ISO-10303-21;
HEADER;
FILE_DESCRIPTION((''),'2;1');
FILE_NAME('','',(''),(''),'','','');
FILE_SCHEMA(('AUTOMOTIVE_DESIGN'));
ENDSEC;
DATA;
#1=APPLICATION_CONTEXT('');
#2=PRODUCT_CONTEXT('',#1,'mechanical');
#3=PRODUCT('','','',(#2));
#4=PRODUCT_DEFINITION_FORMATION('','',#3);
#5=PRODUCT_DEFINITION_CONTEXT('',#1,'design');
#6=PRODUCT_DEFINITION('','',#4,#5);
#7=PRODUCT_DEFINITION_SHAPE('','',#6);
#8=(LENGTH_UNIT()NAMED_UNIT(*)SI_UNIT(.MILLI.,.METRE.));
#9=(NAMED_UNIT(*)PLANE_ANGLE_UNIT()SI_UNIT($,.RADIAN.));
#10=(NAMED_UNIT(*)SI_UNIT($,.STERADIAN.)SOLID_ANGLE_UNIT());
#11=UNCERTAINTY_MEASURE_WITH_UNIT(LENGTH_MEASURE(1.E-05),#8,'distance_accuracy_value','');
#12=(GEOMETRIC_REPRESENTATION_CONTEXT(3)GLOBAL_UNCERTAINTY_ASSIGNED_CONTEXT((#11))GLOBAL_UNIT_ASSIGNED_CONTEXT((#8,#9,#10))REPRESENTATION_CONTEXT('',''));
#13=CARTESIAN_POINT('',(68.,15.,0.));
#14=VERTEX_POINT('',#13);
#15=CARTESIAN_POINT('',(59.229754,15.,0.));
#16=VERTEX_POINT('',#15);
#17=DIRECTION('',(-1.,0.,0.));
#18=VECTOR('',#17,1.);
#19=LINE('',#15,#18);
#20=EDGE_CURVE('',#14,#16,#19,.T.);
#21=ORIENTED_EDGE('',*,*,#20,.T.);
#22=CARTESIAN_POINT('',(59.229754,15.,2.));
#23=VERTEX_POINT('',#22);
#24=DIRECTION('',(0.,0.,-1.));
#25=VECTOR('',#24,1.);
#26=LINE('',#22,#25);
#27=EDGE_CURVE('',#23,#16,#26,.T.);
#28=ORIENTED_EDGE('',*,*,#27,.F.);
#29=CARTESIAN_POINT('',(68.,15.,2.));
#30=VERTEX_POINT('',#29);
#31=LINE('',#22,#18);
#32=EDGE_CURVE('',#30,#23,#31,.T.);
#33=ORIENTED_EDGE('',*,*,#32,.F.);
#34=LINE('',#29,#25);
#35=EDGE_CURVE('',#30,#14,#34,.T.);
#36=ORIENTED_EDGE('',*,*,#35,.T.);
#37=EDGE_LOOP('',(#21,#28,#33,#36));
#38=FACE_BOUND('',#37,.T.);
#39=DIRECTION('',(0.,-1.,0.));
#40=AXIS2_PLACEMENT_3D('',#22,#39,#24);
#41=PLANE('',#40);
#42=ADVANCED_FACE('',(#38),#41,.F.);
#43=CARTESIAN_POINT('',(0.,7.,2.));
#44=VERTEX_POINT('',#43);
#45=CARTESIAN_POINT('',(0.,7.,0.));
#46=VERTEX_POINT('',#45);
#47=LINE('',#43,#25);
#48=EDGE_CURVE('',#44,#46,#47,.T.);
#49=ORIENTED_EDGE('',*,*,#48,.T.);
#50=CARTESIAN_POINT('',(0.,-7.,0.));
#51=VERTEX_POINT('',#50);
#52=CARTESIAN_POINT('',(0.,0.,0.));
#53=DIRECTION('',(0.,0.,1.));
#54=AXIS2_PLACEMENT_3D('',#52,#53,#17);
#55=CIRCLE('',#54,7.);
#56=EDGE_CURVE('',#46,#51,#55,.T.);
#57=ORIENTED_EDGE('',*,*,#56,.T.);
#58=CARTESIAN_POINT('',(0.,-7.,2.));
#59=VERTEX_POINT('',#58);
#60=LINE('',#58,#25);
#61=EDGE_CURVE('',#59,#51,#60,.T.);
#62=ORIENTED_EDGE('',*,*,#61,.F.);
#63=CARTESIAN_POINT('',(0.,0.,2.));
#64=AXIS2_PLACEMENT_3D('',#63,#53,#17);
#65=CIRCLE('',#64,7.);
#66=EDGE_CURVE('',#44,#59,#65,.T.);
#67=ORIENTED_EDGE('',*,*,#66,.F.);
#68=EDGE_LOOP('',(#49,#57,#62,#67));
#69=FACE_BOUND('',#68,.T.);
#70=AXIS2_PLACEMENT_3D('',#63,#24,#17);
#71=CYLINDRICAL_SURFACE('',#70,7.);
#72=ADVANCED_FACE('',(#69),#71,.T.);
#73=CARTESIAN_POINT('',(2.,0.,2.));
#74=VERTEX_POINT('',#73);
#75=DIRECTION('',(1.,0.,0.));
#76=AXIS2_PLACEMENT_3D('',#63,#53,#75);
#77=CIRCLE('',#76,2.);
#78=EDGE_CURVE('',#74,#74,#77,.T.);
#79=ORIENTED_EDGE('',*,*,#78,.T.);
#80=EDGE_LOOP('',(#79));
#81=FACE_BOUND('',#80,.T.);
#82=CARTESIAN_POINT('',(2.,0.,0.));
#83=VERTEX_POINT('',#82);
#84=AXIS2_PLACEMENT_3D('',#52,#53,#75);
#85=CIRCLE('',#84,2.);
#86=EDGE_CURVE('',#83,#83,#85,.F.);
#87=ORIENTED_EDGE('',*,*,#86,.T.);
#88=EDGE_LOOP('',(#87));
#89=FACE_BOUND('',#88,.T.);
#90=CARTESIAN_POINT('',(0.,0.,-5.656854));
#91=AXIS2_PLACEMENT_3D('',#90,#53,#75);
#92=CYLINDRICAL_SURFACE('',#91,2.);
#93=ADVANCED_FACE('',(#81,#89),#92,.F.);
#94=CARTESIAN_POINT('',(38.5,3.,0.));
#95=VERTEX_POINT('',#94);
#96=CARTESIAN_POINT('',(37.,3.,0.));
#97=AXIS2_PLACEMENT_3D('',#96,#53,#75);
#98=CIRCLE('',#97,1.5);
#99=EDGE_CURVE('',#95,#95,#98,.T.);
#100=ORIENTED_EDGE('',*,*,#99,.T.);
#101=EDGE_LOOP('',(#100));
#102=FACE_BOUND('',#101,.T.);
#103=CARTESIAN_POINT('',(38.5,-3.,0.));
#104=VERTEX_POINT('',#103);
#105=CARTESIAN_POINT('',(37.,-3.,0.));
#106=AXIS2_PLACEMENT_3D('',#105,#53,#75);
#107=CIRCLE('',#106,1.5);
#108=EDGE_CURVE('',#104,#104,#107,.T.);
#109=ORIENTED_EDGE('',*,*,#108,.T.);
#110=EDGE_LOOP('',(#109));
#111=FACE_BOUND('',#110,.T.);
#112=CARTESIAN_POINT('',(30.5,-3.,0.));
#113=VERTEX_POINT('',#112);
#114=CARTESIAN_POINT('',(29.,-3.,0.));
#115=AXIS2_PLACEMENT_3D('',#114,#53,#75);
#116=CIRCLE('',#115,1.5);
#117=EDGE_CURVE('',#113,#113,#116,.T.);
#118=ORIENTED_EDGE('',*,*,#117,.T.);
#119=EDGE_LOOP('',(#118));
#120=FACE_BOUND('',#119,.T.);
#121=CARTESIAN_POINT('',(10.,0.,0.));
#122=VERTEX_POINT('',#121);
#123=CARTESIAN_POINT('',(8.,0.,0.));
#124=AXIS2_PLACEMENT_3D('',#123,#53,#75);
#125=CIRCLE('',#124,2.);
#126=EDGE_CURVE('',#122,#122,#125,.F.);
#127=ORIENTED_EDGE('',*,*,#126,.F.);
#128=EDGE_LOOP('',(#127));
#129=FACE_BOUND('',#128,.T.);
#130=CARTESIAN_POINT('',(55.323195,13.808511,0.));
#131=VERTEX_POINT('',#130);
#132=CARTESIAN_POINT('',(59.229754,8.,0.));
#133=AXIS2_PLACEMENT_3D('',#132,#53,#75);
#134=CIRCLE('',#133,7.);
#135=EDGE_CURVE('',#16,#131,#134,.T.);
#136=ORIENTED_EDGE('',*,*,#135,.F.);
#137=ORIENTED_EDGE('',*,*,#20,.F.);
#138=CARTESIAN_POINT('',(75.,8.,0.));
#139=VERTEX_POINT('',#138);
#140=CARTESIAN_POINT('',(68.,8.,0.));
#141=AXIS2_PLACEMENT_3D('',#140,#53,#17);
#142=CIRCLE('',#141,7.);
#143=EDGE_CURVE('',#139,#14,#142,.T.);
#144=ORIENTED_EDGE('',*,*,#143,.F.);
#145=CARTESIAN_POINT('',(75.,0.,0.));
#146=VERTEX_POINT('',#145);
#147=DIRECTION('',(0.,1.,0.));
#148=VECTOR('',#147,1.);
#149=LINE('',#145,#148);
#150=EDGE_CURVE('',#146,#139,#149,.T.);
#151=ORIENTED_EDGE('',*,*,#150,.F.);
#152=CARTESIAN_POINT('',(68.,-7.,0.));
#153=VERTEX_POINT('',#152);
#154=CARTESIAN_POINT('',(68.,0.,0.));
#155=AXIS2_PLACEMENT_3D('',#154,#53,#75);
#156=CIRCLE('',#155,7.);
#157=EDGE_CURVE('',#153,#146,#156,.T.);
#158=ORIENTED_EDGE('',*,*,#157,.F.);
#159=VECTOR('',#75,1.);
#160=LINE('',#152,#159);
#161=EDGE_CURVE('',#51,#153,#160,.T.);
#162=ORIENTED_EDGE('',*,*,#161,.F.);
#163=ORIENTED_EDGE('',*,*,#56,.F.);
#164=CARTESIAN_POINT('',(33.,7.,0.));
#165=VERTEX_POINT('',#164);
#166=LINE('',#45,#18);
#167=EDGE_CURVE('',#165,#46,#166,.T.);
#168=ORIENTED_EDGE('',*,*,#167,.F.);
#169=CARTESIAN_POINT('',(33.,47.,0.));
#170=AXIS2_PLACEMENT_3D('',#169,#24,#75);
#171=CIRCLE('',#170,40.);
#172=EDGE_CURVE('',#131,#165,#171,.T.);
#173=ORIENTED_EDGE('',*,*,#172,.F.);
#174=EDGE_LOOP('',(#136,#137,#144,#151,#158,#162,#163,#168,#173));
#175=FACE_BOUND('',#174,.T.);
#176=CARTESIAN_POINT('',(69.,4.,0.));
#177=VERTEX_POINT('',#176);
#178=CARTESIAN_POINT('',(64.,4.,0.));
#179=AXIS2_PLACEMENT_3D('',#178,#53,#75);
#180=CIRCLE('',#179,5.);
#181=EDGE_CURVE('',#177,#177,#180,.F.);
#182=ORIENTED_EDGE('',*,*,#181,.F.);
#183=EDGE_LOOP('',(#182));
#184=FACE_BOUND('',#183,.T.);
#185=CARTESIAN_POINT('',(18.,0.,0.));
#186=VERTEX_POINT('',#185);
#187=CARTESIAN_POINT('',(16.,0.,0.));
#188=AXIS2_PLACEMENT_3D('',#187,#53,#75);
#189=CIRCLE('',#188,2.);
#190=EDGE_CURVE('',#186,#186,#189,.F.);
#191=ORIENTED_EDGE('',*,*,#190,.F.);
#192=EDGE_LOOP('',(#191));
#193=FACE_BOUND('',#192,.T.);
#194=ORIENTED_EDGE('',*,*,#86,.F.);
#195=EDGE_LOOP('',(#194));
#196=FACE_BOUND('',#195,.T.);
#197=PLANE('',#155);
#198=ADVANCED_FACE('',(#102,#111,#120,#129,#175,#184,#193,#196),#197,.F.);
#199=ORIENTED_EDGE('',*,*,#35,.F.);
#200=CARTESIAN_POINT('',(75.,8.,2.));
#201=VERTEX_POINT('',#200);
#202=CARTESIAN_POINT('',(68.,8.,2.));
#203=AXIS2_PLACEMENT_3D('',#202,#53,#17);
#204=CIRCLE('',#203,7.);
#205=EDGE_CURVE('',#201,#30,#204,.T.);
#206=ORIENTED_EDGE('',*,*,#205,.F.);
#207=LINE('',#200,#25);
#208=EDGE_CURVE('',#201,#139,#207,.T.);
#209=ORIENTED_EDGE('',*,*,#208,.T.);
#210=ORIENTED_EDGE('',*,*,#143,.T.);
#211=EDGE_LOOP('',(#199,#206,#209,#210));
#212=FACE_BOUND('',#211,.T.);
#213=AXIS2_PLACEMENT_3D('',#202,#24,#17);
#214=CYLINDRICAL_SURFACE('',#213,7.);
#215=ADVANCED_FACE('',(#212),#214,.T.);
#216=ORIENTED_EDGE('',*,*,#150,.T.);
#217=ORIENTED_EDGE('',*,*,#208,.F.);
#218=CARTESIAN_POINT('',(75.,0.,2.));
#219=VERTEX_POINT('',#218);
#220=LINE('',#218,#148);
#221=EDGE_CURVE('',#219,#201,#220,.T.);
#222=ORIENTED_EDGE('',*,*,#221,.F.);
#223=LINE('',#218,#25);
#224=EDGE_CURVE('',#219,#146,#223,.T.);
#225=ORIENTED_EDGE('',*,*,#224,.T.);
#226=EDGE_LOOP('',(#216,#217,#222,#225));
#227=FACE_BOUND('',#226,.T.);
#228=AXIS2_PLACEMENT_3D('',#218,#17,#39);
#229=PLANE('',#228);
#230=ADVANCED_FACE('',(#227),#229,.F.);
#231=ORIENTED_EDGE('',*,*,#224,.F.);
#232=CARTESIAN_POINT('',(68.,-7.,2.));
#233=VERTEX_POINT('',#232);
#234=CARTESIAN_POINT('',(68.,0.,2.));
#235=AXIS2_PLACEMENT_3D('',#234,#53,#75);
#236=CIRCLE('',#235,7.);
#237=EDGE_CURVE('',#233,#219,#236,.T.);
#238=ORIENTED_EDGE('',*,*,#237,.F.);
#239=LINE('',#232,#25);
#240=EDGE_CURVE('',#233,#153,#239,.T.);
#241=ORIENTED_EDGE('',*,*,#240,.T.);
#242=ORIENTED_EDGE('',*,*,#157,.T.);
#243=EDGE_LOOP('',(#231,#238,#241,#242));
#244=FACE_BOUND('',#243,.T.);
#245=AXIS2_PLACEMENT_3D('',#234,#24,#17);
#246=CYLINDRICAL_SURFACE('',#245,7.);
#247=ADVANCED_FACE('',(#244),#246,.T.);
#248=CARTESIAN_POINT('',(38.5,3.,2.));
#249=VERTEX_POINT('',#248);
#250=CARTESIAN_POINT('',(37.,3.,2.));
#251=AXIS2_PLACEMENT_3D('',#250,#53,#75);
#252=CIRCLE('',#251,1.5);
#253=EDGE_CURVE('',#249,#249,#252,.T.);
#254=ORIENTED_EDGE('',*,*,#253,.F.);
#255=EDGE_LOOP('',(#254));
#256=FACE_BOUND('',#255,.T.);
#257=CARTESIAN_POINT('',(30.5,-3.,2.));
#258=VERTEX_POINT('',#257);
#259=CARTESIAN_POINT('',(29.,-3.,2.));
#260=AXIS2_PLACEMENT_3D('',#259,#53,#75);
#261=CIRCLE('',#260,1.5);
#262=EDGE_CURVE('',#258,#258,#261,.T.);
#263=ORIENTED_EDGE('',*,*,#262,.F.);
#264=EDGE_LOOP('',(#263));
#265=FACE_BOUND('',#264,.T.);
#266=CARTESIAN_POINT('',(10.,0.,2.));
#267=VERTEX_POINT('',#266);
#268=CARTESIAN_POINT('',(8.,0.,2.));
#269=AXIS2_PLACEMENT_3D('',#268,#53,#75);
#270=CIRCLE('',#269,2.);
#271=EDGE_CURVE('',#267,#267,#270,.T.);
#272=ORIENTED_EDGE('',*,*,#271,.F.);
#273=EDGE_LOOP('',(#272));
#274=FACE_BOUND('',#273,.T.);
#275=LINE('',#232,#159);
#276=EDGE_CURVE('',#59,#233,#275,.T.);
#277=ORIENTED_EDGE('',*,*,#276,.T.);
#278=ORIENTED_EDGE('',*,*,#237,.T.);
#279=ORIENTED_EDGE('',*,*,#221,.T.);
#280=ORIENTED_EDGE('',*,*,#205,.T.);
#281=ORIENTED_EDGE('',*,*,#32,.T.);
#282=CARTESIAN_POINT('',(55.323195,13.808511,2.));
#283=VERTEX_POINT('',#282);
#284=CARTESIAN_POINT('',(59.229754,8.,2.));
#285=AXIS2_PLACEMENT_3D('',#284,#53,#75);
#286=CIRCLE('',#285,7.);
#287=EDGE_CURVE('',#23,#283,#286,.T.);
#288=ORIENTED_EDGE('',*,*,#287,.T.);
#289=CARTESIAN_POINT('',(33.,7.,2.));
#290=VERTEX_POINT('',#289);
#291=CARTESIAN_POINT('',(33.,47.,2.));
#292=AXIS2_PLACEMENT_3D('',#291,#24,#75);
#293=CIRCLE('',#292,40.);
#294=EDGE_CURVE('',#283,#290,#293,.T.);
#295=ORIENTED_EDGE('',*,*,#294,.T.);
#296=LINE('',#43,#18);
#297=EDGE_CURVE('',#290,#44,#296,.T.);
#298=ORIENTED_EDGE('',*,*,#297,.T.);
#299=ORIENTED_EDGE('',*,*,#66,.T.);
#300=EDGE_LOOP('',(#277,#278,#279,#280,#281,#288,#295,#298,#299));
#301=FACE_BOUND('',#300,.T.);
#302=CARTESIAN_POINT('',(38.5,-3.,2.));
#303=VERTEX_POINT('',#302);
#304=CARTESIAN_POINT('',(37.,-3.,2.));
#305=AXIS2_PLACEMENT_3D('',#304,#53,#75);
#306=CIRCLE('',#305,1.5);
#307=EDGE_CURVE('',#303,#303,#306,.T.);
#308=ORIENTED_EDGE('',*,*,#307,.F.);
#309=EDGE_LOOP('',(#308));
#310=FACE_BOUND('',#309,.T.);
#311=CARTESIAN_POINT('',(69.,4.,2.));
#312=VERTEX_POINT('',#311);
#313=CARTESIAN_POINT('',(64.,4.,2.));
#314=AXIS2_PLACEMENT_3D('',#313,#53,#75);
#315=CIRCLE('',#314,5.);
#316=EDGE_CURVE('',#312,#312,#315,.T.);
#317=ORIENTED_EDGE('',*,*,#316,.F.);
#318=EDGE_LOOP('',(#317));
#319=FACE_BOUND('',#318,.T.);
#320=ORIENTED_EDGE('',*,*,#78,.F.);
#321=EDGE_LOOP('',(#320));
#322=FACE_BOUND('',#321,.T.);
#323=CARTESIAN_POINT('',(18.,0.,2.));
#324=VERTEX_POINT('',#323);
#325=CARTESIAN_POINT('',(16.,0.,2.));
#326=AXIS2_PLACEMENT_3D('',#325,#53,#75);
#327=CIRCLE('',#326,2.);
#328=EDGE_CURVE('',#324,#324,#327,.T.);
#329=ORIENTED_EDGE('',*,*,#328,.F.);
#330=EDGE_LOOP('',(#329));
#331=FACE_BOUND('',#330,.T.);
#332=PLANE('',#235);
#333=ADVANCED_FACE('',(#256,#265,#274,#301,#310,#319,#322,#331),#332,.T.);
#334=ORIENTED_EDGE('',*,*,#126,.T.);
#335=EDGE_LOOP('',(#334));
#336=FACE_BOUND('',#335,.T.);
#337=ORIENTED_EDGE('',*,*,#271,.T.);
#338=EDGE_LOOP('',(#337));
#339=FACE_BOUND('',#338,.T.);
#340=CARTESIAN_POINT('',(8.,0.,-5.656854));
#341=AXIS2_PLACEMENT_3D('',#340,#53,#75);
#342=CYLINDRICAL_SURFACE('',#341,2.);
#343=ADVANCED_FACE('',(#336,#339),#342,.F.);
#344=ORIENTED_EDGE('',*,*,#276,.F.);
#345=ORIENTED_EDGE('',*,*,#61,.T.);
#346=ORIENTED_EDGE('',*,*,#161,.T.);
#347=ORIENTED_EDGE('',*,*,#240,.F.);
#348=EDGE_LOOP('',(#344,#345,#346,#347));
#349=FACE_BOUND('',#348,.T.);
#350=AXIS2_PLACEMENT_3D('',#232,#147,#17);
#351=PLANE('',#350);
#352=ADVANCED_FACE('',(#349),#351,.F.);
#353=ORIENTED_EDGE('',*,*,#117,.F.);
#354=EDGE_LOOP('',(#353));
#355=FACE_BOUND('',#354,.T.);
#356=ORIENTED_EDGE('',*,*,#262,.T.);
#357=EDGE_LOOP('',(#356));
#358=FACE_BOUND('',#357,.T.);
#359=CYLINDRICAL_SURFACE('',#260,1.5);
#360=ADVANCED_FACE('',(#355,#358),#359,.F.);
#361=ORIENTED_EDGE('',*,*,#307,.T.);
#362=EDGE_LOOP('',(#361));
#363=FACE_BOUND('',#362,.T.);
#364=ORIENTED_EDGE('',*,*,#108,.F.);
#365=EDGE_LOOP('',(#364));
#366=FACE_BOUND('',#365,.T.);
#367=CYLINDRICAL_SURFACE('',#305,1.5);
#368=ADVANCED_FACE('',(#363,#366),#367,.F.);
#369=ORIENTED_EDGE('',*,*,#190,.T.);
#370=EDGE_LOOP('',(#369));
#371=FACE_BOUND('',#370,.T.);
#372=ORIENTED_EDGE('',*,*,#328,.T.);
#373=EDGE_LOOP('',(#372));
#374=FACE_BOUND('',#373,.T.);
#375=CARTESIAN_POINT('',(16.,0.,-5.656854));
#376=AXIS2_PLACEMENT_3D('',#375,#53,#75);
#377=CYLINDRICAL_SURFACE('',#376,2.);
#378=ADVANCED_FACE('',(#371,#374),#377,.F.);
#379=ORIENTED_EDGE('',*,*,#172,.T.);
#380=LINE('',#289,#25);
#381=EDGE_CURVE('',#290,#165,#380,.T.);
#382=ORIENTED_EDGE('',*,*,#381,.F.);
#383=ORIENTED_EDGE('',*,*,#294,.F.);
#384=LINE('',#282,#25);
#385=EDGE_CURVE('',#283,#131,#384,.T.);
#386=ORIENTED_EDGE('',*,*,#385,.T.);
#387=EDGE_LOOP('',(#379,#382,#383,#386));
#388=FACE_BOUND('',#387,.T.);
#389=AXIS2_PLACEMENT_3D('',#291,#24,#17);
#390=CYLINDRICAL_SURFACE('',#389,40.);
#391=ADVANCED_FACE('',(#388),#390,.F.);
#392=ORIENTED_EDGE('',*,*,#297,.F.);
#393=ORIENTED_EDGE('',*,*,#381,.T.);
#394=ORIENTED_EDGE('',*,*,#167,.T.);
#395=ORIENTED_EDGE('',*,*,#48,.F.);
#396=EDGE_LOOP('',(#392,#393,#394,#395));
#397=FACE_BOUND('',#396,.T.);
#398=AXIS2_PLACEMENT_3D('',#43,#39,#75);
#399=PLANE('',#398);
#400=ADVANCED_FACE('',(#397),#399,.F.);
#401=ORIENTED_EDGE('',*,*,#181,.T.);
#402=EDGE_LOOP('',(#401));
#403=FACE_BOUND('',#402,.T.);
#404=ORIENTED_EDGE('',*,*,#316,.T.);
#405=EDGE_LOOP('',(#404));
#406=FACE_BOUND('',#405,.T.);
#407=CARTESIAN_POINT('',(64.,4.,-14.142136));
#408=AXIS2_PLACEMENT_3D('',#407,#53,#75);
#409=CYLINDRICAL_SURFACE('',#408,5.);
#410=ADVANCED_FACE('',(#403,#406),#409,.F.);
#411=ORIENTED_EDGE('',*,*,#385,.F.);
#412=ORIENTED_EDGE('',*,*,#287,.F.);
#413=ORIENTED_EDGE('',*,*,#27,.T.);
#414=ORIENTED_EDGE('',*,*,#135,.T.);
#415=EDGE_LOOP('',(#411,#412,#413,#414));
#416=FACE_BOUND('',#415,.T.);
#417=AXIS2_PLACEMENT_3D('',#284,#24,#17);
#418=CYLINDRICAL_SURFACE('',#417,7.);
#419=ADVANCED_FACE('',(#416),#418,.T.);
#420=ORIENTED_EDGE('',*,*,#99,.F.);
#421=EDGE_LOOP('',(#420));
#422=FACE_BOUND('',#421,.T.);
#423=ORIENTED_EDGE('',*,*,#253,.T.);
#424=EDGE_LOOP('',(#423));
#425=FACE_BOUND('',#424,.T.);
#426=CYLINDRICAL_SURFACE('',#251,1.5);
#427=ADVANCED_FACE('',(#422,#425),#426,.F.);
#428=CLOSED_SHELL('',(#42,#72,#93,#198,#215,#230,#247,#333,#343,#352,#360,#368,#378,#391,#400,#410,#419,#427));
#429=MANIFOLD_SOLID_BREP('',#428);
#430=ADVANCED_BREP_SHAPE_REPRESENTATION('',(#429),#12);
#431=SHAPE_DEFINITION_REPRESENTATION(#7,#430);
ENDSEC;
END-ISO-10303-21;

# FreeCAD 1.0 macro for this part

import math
import FreeCAD as App
import Part
import Sketcher

doc = App.newDocument("Part")
body = doc.addObject("PartDesign::Body", "Body")

# Sketch on XY plane
sketch1 = body.newObject("Sketcher::SketchObject", "Sketch")
sketch1.AttachmentSupport = (doc.getObject("XY_Plane"), [""])
sketch1.MapMode = "FlatFace"
sketch1.addGeometry(Part.LineSegment(App.Vector(33, 7, 0), App.Vector(0, 7, 0)), False)
sketch1.addGeometry(Part.ArcOfCircle(Part.Circle(App.Vector(0, 0, 0), App.Vector(0, 0, 1), 7), math.radians(90), math.radians(270)), False)
sketch1.addGeometry(Part.LineSegment(App.Vector(0, -7, 0), App.Vector(68, -7, 0)), False)
sketch1.addGeometry(Part.ArcOfCircle(Part.Circle(App.Vector(68, 0, 0), App.Vector(0, 0, 1), 7), math.radians(-90), math.radians(0)), False)
sketch1.addGeometry(Part.LineSegment(App.Vector(75, 0, 0), App.Vector(75, 8, 0)), False)
sketch1.addGeometry(Part.ArcOfCircle(Part.Circle(App.Vector(68, 8, 0), App.Vector(0, 0, 1), 7), math.radians(0), math.radians(90)), False)
sketch1.addGeometry(Part.LineSegment(App.Vector(68, 15, 0), App.Vector(59.2, 15, 0)), False)
sketch1.addGeometry(Part.ArcOfCircle(Part.Circle(App.Vector(59.2, 8, 0), App.Vector(0, 0, 1), 7), math.radians(90), math.radians(124)), False)
sketch1.addGeometry(Part.ArcOfCircle(Part.Circle(App.Vector(33, 47, 0), App.Vector(0, 0, 1), 40), math.radians(-90), math.radians(-56)), False)
sketch1.addConstraint(Sketcher.Constraint("Tangent", 0, 2, 1, 1))
sketch1.addConstraint(Sketcher.Constraint("Tangent", 1, 2, 2, 1))
sketch1.addConstraint(Sketcher.Constraint("Tangent", 2, 2, 3, 1))
sketch1.addConstraint(Sketcher.Constraint("Tangent", 3, 2, 4, 1))
sketch1.addConstraint(Sketcher.Constraint("Tangent", 4, 2, 5, 1))
sketch1.addConstraint(Sketcher.Constraint("Tangent", 5, 2, 6, 1))
sketch1.addConstraint(Sketcher.Constraint("Tangent", 6, 2, 7, 1))
sketch1.addConstraint(Sketcher.Constraint("Tangent", 7, 2, 8, 2))
sketch1.addConstraint(Sketcher.Constraint("Tangent", 8, 1, 0, 1))
sketch1.addConstraint(Sketcher.Constraint("Horizontal", 0))
sketch1.addConstraint(Sketcher.Constraint("Horizontal", 2))
sketch1.addConstraint(Sketcher.Constraint("Vertical", 4))
sketch1.addConstraint(Sketcher.Constraint("Horizontal", 6))
sketch1.addConstraint(Sketcher.Constraint("Coincident", 1, 3, -1, 1))
sketch1.addConstraint(Sketcher.Constraint("Equal", 1, 3))
sketch1.addConstraint(Sketcher.Constraint("Equal", 3, 5))
sketch1.addConstraint(Sketcher.Constraint("Equal", 5, 7))
sketch1.addConstraint(Sketcher.Constraint("Radius", 1, 7.0))
sketch1.addConstraint(Sketcher.Constraint("Radius", 8, 40.0))
sketch1.addConstraint(Sketcher.Constraint("DistanceX", 0, 2, 0, 1, 33.0))
sketch1.addConstraint(Sketcher.Constraint("DistanceX", 2, 1, 2, 2, 68.0))
sketch1.addConstraint(Sketcher.Constraint("DistanceY", 4, 1, 4, 2, 8.0))
pad1 = body.newObject("PartDesign::Pad", "Pad")
pad1.Profile = sketch1
pad1.Length = 2

# Sketch on XY plane
sketch2 = body.newObject("Sketcher::SketchObject", "Sketch001")
sketch2.AttachmentSupport = (doc.getObject("XY_Plane"), [""])
sketch2.MapMode = "FlatFace"
sketch2.AttachmentOffset = App.Placement(App.Vector(0, 0, 2), App.Rotation())
sketch2.addGeometry(Part.Circle(App.Vector(0, 0, 0), App.Vector(0, 0, 1), 2), False)
sketch2.addGeometry(Part.Circle(App.Vector(8, 0, 0), App.Vector(0, 0, 1), 2), False)
sketch2.addGeometry(Part.Circle(App.Vector(16, 0, 0), App.Vector(0, 0, 1), 2), False)
sketch2.addConstraint(Sketcher.Constraint("Coincident", 0, 3, -1, 1))
sketch2.addConstraint(Sketcher.Constraint("Equal", 0, 1))
sketch2.addConstraint(Sketcher.Constraint("Equal", 1, 2))
sketch2.addConstraint(Sketcher.Constraint("PointOnObject", 1, 3, -1))
sketch2.addConstraint(Sketcher.Constraint("PointOnObject", 2, 3, -1))
sketch2.addConstraint(Sketcher.Constraint("Diameter", 0, 4.0))
sketch2.addConstraint(Sketcher.Constraint("DistanceX", -1, 1, 1, 3, 8.0))
sketch2.addConstraint(Sketcher.Constraint("DistanceX", -1, 1, 2, 3, 16.0))
pocket1 = body.newObject("PartDesign::Pocket", "Pocket")
pocket1.Profile = sketch2
pocket1.Length = 2

# Sketch on XY plane
sketch3 = body.newObject("Sketcher::SketchObject", "Sketch002")
sketch3.AttachmentSupport = (doc.getObject("XY_Plane"), [""])
sketch3.MapMode = "FlatFace"
sketch3.AttachmentOffset = App.Placement(App.Vector(0, 0, 2), App.Rotation())
sketch3.addGeometry(Part.Circle(App.Vector(64, 4, 0), App.Vector(0, 0, 1), 5), False)
sketch3.addConstraint(Sketcher.Constraint("Diameter", 0, 10.0))
sketch3.addConstraint(Sketcher.Constraint("DistanceX", -1, 1, 0, 3, 64.0))
sketch3.addConstraint(Sketcher.Constraint("DistanceY", -1, 1, 0, 3, 4.0))
pocket2 = body.newObject("PartDesign::Pocket", "Pocket001")
pocket2.Profile = sketch3
pocket2.Length = 2

# Sketch on XY plane
sketch4 = body.newObject("Sketcher::SketchObject", "Sketch003")
sketch4.AttachmentSupport = (doc.getObject("XY_Plane"), [""])
sketch4.MapMode = "FlatFace"
sketch4.AttachmentOffset = App.Placement(App.Vector(0, 0, 2), App.Rotation())
sketch4.addGeometry(Part.Circle(App.Vector(29, -3, 0), App.Vector(0, 0, 1), 1.5), False)
sketch4.addGeometry(Part.Circle(App.Vector(37, -3, 0), App.Vector(0, 0, 1), 1.5), False)
sketch4.addGeometry(Part.Circle(App.Vector(37, 3, 0), App.Vector(0, 0, 1), 1.5), False)
sketch4.addConstraint(Sketcher.Constraint("Equal", 0, 1))
sketch4.addConstraint(Sketcher.Constraint("Equal", 1, 2))
sketch4.addConstraint(Sketcher.Constraint("Symmetric", 1, 3, 2, 3, -1))
sketch4.addConstraint(Sketcher.Constraint("Horizontal", 0, 3, 1, 3))
sketch4.addConstraint(Sketcher.Constraint("Diameter", 0, 3.0))
sketch4.addConstraint(Sketcher.Constraint("DistanceX", -1, 1, 0, 3, 29.0))
sketch4.addConstraint(Sketcher.Constraint("DistanceY", 0, 3, -1, 1, 3.0))
sketch4.addConstraint(Sketcher.Constraint("DistanceX", -1, 1, 1, 3, 37.0))
doc.recompute()
hole = body.newObject("PartDesign::Hole", "Hole")
hole.Profile = sketch4
hole.ThreadType = "None"
hole.Diameter = 3
hole.DepthType = "ThroughAll"

doc.recompute()
